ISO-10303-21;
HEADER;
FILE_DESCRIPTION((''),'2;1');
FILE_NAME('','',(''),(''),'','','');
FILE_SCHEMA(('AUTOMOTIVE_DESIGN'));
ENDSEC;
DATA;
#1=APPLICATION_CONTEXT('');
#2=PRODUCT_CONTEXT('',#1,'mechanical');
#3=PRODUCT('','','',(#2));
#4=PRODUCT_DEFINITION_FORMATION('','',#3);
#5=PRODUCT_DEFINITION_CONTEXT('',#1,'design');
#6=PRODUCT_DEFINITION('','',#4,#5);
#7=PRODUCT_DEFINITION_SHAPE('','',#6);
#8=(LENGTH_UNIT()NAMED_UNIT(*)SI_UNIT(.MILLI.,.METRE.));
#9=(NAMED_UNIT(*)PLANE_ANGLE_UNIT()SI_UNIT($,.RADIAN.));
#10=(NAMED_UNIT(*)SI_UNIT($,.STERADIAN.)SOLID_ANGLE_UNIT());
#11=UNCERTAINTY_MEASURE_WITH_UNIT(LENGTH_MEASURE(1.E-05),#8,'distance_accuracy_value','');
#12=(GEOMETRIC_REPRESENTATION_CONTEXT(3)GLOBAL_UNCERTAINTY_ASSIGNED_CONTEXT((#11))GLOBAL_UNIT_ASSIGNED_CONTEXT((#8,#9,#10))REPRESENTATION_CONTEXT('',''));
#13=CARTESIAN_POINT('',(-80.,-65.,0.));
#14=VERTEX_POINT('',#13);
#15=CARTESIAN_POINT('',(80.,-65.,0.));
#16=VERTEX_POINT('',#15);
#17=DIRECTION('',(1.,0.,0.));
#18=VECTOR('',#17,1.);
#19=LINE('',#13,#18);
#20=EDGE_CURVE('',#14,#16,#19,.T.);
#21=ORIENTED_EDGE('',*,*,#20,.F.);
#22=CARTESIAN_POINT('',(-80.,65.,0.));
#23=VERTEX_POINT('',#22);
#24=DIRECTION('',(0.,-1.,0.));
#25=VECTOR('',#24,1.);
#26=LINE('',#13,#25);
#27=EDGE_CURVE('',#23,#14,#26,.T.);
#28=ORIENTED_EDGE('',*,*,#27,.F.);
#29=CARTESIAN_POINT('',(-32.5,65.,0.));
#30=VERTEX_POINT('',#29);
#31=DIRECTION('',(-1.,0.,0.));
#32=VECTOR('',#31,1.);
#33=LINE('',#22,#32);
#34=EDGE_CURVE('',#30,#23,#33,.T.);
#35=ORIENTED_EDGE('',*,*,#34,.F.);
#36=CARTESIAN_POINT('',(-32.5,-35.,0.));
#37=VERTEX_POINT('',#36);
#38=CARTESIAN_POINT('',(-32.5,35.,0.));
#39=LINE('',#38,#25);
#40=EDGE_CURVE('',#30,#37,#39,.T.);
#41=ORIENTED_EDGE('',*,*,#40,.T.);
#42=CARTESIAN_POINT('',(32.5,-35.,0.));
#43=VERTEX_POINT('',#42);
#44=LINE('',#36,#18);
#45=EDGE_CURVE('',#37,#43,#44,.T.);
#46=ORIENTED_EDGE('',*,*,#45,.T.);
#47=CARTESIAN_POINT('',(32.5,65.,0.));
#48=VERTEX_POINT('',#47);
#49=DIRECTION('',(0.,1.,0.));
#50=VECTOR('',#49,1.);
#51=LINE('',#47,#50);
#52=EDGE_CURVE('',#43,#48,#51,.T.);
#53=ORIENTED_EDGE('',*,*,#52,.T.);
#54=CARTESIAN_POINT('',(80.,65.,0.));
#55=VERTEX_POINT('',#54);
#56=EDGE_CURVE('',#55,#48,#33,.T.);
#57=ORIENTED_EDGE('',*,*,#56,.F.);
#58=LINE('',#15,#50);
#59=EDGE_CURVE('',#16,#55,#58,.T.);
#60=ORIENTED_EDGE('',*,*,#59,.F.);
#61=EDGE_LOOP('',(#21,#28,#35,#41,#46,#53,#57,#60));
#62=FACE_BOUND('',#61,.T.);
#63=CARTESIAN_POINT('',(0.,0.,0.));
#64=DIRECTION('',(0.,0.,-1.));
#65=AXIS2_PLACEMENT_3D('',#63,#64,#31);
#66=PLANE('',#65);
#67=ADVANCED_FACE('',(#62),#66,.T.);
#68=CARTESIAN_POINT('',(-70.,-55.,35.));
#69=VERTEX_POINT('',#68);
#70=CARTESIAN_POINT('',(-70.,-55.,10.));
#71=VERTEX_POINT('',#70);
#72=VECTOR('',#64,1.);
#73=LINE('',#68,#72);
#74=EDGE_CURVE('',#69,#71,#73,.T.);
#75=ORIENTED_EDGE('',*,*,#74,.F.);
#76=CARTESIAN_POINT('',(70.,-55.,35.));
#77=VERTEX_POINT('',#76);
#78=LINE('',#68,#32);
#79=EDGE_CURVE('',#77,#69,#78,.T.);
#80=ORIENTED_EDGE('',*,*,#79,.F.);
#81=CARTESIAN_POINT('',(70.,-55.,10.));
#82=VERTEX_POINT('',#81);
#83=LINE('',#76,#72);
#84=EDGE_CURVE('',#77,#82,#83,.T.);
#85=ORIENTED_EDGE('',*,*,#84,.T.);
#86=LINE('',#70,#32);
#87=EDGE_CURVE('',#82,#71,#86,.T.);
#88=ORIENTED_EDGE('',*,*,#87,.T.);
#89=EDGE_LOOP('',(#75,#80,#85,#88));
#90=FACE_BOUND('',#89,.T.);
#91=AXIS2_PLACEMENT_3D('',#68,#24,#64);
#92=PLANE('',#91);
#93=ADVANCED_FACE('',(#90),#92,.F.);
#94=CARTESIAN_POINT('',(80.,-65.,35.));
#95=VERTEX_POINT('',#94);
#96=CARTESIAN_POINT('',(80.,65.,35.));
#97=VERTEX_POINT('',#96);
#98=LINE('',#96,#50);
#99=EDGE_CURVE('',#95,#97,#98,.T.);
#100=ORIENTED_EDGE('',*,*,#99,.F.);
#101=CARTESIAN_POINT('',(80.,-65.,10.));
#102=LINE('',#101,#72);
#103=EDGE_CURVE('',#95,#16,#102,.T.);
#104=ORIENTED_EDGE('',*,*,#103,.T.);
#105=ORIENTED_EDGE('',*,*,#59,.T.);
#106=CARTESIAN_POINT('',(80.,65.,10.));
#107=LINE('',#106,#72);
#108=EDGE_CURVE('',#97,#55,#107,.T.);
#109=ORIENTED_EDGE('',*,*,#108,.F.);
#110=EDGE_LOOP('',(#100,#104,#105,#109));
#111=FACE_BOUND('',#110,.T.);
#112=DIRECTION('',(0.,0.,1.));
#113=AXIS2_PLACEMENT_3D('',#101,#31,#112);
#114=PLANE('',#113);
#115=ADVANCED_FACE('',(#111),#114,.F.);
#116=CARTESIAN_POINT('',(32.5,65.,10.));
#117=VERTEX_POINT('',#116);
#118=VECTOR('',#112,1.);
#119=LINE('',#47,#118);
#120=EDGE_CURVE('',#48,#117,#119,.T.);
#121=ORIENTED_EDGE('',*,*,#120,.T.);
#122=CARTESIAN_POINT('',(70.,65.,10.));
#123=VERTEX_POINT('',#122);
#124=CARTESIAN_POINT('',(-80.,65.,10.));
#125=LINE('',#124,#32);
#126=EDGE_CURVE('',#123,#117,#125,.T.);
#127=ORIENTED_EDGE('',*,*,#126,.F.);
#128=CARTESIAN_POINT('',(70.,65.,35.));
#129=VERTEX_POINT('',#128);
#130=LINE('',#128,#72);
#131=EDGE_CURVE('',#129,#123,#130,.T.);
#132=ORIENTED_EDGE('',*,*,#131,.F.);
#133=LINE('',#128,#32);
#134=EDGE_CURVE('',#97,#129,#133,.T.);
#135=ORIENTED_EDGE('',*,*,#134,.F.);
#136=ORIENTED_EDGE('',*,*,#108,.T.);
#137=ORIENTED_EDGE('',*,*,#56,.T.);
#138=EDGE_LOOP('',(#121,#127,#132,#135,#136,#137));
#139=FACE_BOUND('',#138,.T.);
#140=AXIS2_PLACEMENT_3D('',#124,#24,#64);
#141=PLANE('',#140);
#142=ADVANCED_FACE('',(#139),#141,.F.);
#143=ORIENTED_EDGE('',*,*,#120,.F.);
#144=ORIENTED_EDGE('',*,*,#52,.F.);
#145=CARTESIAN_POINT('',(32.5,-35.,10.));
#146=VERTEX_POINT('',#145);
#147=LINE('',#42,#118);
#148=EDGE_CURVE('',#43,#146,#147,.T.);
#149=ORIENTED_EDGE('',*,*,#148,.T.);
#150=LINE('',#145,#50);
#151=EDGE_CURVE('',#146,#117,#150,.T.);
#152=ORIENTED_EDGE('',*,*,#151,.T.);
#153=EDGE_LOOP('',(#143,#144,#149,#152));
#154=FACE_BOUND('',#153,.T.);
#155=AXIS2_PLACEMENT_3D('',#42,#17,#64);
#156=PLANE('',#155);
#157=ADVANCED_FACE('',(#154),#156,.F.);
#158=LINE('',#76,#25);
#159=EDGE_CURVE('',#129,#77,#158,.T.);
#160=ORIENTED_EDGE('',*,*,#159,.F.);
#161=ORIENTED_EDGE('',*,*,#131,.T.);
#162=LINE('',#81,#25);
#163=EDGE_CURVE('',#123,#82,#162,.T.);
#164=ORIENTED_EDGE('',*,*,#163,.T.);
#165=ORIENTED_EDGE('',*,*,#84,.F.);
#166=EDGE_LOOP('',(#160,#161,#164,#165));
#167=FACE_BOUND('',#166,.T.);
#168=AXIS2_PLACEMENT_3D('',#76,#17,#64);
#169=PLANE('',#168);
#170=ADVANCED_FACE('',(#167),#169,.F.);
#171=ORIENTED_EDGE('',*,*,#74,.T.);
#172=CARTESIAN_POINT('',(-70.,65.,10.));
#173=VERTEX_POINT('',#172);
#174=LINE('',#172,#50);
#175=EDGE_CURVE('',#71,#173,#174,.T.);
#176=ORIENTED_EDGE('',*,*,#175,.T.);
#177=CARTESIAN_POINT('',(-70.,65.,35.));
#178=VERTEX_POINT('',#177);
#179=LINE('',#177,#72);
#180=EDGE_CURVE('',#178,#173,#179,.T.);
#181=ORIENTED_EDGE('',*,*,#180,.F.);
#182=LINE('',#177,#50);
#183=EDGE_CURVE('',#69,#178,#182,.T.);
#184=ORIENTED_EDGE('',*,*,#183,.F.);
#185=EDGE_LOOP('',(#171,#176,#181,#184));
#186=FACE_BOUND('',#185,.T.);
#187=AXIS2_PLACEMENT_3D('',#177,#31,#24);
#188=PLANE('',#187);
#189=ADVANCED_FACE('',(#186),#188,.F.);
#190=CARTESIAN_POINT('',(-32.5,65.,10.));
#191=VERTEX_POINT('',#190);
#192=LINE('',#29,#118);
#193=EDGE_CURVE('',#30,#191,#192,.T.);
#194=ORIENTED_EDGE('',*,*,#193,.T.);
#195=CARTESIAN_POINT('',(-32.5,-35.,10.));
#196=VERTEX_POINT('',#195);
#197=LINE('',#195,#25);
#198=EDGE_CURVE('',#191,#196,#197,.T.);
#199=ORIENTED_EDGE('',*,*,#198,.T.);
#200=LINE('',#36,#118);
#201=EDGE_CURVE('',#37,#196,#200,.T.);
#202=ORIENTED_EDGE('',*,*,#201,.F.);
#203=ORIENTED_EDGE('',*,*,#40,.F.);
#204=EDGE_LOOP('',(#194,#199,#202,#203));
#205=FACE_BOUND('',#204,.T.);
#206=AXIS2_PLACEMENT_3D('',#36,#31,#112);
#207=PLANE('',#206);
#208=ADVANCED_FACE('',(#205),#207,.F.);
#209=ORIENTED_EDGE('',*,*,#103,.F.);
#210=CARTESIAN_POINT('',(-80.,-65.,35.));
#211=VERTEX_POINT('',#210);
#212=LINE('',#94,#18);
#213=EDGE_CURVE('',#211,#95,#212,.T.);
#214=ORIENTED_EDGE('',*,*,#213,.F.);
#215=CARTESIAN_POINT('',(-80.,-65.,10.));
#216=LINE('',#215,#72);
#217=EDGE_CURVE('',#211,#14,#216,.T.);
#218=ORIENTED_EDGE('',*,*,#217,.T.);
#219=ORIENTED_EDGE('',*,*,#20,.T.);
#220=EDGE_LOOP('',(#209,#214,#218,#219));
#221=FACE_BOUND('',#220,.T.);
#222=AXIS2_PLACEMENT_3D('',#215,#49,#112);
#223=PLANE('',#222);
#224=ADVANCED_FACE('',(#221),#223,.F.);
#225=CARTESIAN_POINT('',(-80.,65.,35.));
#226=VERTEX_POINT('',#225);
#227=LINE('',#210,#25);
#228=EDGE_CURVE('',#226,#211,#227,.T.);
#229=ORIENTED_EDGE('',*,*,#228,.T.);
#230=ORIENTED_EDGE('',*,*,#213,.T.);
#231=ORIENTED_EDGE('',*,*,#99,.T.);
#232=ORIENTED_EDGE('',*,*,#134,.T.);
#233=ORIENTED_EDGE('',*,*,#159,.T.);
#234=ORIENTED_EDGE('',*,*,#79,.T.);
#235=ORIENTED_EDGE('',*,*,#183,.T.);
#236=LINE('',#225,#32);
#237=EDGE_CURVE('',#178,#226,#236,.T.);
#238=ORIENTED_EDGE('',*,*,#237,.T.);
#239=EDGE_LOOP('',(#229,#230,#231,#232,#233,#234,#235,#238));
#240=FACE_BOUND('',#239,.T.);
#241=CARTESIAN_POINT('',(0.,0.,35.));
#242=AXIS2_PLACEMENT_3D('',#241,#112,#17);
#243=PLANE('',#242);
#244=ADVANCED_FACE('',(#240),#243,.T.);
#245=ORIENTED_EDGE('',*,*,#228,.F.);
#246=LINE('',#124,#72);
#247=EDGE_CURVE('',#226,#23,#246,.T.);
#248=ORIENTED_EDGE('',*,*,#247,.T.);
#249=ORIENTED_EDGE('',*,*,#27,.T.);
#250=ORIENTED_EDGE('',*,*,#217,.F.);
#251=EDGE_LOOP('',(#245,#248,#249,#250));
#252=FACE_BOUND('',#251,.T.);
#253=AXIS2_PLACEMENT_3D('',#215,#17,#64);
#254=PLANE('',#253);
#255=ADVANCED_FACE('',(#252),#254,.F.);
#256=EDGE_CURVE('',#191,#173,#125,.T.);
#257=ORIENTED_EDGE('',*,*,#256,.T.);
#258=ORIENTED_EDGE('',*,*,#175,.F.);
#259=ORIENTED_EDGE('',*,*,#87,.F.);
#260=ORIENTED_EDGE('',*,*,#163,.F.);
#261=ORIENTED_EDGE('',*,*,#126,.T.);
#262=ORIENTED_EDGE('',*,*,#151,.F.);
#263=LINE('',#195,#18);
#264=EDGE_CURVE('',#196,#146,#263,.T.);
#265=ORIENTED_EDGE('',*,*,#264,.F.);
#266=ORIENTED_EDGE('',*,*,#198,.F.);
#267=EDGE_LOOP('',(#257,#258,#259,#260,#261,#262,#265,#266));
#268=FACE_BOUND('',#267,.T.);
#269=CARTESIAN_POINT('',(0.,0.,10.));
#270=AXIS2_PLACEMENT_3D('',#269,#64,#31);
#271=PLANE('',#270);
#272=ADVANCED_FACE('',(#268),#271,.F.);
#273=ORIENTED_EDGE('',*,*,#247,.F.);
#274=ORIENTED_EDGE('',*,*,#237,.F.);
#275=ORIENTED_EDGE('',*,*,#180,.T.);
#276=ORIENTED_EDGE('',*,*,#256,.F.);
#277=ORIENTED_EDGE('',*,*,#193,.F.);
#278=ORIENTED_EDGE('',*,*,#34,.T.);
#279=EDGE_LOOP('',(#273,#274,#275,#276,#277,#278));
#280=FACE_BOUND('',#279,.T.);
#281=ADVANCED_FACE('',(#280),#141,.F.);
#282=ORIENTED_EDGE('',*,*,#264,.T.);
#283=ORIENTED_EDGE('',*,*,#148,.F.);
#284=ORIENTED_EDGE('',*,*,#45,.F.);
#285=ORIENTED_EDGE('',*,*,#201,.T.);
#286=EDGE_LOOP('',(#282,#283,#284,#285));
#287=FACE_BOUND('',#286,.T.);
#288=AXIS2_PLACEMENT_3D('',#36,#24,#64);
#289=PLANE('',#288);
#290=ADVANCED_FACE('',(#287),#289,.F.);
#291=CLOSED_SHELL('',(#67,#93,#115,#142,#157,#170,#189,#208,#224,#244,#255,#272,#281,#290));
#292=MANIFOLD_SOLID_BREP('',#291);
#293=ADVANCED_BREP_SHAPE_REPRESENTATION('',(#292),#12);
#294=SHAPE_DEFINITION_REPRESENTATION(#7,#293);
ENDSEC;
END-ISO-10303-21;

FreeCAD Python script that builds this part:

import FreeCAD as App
import Part
import Sketcher
from FreeCAD import Vector

doc = App.newDocument("Part")
body = doc.addObject("PartDesign::Body", "Body")

# Sketch on XY plane
sketch1 = body.newObject("Sketcher::SketchObject", "Sketch")
sketch1.AttachmentSupport = (doc.getObject("XY_Plane"), [""])
sketch1.MapMode = "FlatFace"
sketch1.addGeometry(Part.LineSegment(Vector(-80, 65, 0), Vector(-80, -65, 0)), False)
sketch1.addGeometry(Part.LineSegment(Vector(-80, -65, 0), Vector(80, -65, 0)), False)
sketch1.addGeometry(Part.LineSegment(Vector(80, -65, 0), Vector(80, 65, 0)), False)
sketch1.addGeometry(Part.LineSegment(Vector(80, 65, 0), Vector(-80, 65, 0)), False)
sketch1.addConstraint(Sketcher.Constraint("Coincident", 0, 2, 1, 1))
sketch1.addConstraint(Sketcher.Constraint("Coincident", 1, 2, 2, 1))
sketch1.addConstraint(Sketcher.Constraint("Coincident", 2, 2, 3, 1))
sketch1.addConstraint(Sketcher.Constraint("Coincident", 3, 2, 0, 1))
sketch1.addConstraint(Sketcher.Constraint("Vertical", 0))
sketch1.addConstraint(Sketcher.Constraint("Horizontal", 1))
sketch1.addConstraint(Sketcher.Constraint("Vertical", 2))
sketch1.addConstraint(Sketcher.Constraint("Horizontal", 3))
sketch1.addConstraint(Sketcher.Constraint("Symmetric", 0, 2, 2, 2, -1, 1))
sketch1.addConstraint(Sketcher.Constraint("DistanceX", 1, 1, 1, 2, 160.0))
sketch1.addConstraint(Sketcher.Constraint("DistanceY", 0, 2, 0, 1, 130.0))
pad1 = body.newObject("PartDesign::Pad", "Pad")
pad1.Profile = sketch1
pad1.Length = 10

# Sketch on XY plane
sketch2 = body.newObject("Sketcher::SketchObject", "Sketch001")
sketch2.AttachmentSupport = (doc.getObject("XY_Plane"), [""])
sketch2.MapMode = "FlatFace"
sketch2.AttachmentOffset = App.Placement(Vector(0, 0, 10), App.Rotation())
sketch2.addGeometry(Part.LineSegment(Vector(-32.5, 65, 0), Vector(-32.5, -35, 0)), False)
sketch2.addGeometry(Part.LineSegment(Vector(-32.5, -35, 0), Vector(32.5, -35, 0)), False)
sketch2.addGeometry(Part.LineSegment(Vector(32.5, -35, 0), Vector(32.5, 65, 0)), False)
sketch2.addGeometry(Part.LineSegment(Vector(32.5, 65, 0), Vector(-32.5, 65, 0)), False)
sketch2.addConstraint(Sketcher.Constraint("Coincident", 0, 2, 1, 1))
sketch2.addConstraint(Sketcher.Constraint("Coincident", 1, 2, 2, 1))
sketch2.addConstraint(Sketcher.Constraint("Coincident", 2, 2, 3, 1))
sketch2.addConstraint(Sketcher.Constraint("Coincident", 3, 2, 0, 1))
sketch2.addConstraint(Sketcher.Constraint("Vertical", 0))
sketch2.addConstraint(Sketcher.Constraint("Horizontal", 1))
sketch2.addConstraint(Sketcher.Constraint("Vertical", 2))
sketch2.addConstraint(Sketcher.Constraint("Horizontal", 3))
sketch2.addConstraint(Sketcher.Constraint("DistanceX", 1, 1, 1, 2, 65.0))
sketch2.addConstraint(Sketcher.Constraint("DistanceY", 0, 2, 0, 1, 100.0))
sketch2.addConstraint(Sketcher.Constraint("DistanceY", 0, 2, -1, 1, 35.0))
sketch2.addConstraint(Sketcher.Constraint("DistanceX", 0, 2, -1, 1, 32.5))
pocket1 = body.newObject("PartDesign::Pocket", "Pocket")
pocket1.Profile = sketch2
pocket1.Length = 10

# Sketch on XY plane
sketch3 = body.newObject("Sketcher::SketchObject", "Sketch002")
sketch3.AttachmentSupport = (doc.getObject("XY_Plane"), [""])
sketch3.MapMode = "FlatFace"
sketch3.AttachmentOffset = App.Placement(Vector(0, 0, 10), App.Rotation())
sketch3.addGeometry(Part.LineSegment(Vector(-70, -55, 0), Vector(-70, 65, 0)), False)
sketch3.addGeometry(Part.LineSegment(Vector(-70, 65, 0), Vector(-80, 65, 0)), False)
sketch3.addGeometry(Part.LineSegment(Vector(-80, 65, 0), Vector(-80, -65, 0)), False)
sketch3.addGeometry(Part.LineSegment(Vector(-80, -65, 0), Vector(80, -65, 0)), False)
sketch3.addGeometry(Part.LineSegment(Vector(80, -65, 0), Vector(80, 65, 0)), False)
sketch3.addGeometry(Part.LineSegment(Vector(80, 65, 0), Vector(70, 65, 0)), False)
sketch3.addGeometry(Part.LineSegment(Vector(70, 65, 0), Vector(70, -55, 0)), False)
sketch3.addGeometry(Part.LineSegment(Vector(70, -55, 0), Vector(-70, -55, 0)), False)
sketch3.addConstraint(Sketcher.Constraint("Coincident", 0, 2, 1, 1))
sketch3.addConstraint(Sketcher.Constraint("Coincident", 1, 2, 2, 1))
sketch3.addConstraint(Sketcher.Constraint("Coincident", 2, 2, 3, 1))
sketch3.addConstraint(Sketcher.Constraint("Coincident", 3, 2, 4, 1))
sketch3.addConstraint(Sketcher.Constraint("Coincident", 4, 2, 5, 1))
sketch3.addConstraint(Sketcher.Constraint("Coincident", 5, 2, 6, 1))
sketch3.addConstraint(Sketcher.Constraint("Coincident", 6, 2, 7, 1))
sketch3.addConstraint(Sketcher.Constraint("Coincident", 7, 2, 0, 1))
sketch3.addConstraint(Sketcher.Constraint("Vertical", 0))
sketch3.addConstraint(Sketcher.Constraint("Horizontal", 1))
sketch3.addConstraint(Sketcher.Constraint("Vertical", 2))
sketch3.addConstraint(Sketcher.Constraint("Horizontal", 3))
sketch3.addConstraint(Sketcher.Constraint("Vertical", 4))
sketch3.addConstraint(Sketcher.Constraint("Horizontal", 5))
sketch3.addConstraint(Sketcher.Constraint("Vertical", 6))
sketch3.addConstraint(Sketcher.Constraint("Horizontal", 7))
sketch3.addConstraint(Sketcher.Constraint("Symmetric", 1, 2, 3, 2, -1, 1))
sketch3.addConstraint(Sketcher.Constraint("Symmetric", 0, 2, 5, 2, -2))
sketch3.addConstraint(Sketcher.Constraint("DistanceX", 1, 2, 1, 1, 10.0))
sketch3.addConstraint(Sketcher.Constraint("DistanceX", 3, 1, 3, 2, 160.0))
sketch3.addConstraint(Sketcher.Constraint("DistanceY", 0, 1, 0, 2, 120.0))
sketch3.addConstraint(Sketcher.Constraint("DistanceY", 2, 2, 2, 1, 130.0))
pad2 = body.newObject("PartDesign::Pad", "Pad001")
pad2.Profile = sketch3
pad2.Length = 25

doc.recompute()
